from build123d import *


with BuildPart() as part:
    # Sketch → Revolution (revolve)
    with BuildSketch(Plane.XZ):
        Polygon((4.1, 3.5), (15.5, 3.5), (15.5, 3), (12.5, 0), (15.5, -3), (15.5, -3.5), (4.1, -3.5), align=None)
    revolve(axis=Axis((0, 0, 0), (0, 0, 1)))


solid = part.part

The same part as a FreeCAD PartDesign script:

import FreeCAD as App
import Part
import Sketcher
from FreeCAD import Vector

doc = App.newDocument("Part")
body = doc.addObject("PartDesign::Body", "Body")

# Sketch on XZ plane
sketch1 = doc.addObject("Sketcher::SketchObject", "Sketch")
body.addObject(sketch1)
sketch1.AttachmentSupport = (doc.XZ_Plane, [""])
sketch1.MapMode = "FlatFace"
sketch1.addGeometry(Part.LineSegment(Vector(15.5, 3.5, 0), Vector(4.1, 3.5, 0)), False)
sketch1.addGeometry(Part.LineSegment(Vector(4.1, 3.5, 0), Vector(4.1, -3.5, 0)), False)
sketch1.addGeometry(Part.LineSegment(Vector(4.1, -3.5, 0), Vector(15.5, -3.5, 0)), False)
sketch1.addGeometry(Part.LineSegment(Vector(15.5, -3.5, 0), Vector(15.5, -3, 0)), False)
sketch1.addGeometry(Part.LineSegment(Vector(15.5, -3, 0), Vector(12.5, 0, 0)), False)
sketch1.addGeometry(Part.LineSegment(Vector(12.5, 0, 0), Vector(15.5, 3, 0)), False)
sketch1.addGeometry(Part.LineSegment(Vector(15.5, 3, 0), Vector(15.5, 3.5, 0)), False)
sketch1.addConstraint(Sketcher.Constraint("Coincident", 0, 2, 1, 1))
sketch1.addConstraint(Sketcher.Constraint("Coincident", 1, 2, 2, 1))
sketch1.addConstraint(Sketcher.Constraint("Coincident", 2, 2, 3, 1))
sketch1.addConstraint(Sketcher.Constraint("Coincident", 3, 2, 4, 1))
sketch1.addConstraint(Sketcher.Constraint("Coincident", 4, 2, 5, 1))
sketch1.addConstraint(Sketcher.Constraint("Coincident", 5, 2, 6, 1))
sketch1.addConstraint(Sketcher.Constraint("Coincident", 6, 2, 0, 1))
sketch1.addConstraint(Sketcher.Constraint("Horizontal", 0))
sketch1.addConstraint(Sketcher.Constraint("Vertical", 1))
sketch1.addConstraint(Sketcher.Constraint("Horizontal", 2))
sketch1.addConstraint(Sketcher.Constraint("Vertical", 3))
sketch1.addConstraint(Sketcher.Constraint("Vertical", 6))
sketch1.addConstraint(Sketcher.Constraint("Symmetric", 3, 2, 5, 2, -1))
sketch1.addConstraint(Sketcher.Constraint("PointOnObject", 4, 2, -1))
sketch1.addConstraint(Sketcher.Constraint("Perpendicular", 4, 5))
sketch1.addConstraint(Sketcher.Constraint("Equal", 3, 6))
sketch1.addConstraint(Sketcher.Constraint("DistanceY", 1, 2, 1, 1, 7.0))
sketch1.addConstraint(Sketcher.Constraint("DistanceX", 0, 2, 0, 1, 11.4))
sketch1.addConstraint(Sketcher.Constraint("DistanceY", 3, 1, 3, 2, 0.5))
sketch1.addConstraint(Sketcher.Constraint("DistanceX", -1, 1, 0, 2, 4.1))
revolution = doc.addObject("PartDesign::Revolution", "Revolution")
body.addObject(revolution)
revolution.Profile = sketch1
revolution.ReferenceAxis = (sketch1, ["V_Axis"])
revolution.Angle = 360

doc.recompute()
